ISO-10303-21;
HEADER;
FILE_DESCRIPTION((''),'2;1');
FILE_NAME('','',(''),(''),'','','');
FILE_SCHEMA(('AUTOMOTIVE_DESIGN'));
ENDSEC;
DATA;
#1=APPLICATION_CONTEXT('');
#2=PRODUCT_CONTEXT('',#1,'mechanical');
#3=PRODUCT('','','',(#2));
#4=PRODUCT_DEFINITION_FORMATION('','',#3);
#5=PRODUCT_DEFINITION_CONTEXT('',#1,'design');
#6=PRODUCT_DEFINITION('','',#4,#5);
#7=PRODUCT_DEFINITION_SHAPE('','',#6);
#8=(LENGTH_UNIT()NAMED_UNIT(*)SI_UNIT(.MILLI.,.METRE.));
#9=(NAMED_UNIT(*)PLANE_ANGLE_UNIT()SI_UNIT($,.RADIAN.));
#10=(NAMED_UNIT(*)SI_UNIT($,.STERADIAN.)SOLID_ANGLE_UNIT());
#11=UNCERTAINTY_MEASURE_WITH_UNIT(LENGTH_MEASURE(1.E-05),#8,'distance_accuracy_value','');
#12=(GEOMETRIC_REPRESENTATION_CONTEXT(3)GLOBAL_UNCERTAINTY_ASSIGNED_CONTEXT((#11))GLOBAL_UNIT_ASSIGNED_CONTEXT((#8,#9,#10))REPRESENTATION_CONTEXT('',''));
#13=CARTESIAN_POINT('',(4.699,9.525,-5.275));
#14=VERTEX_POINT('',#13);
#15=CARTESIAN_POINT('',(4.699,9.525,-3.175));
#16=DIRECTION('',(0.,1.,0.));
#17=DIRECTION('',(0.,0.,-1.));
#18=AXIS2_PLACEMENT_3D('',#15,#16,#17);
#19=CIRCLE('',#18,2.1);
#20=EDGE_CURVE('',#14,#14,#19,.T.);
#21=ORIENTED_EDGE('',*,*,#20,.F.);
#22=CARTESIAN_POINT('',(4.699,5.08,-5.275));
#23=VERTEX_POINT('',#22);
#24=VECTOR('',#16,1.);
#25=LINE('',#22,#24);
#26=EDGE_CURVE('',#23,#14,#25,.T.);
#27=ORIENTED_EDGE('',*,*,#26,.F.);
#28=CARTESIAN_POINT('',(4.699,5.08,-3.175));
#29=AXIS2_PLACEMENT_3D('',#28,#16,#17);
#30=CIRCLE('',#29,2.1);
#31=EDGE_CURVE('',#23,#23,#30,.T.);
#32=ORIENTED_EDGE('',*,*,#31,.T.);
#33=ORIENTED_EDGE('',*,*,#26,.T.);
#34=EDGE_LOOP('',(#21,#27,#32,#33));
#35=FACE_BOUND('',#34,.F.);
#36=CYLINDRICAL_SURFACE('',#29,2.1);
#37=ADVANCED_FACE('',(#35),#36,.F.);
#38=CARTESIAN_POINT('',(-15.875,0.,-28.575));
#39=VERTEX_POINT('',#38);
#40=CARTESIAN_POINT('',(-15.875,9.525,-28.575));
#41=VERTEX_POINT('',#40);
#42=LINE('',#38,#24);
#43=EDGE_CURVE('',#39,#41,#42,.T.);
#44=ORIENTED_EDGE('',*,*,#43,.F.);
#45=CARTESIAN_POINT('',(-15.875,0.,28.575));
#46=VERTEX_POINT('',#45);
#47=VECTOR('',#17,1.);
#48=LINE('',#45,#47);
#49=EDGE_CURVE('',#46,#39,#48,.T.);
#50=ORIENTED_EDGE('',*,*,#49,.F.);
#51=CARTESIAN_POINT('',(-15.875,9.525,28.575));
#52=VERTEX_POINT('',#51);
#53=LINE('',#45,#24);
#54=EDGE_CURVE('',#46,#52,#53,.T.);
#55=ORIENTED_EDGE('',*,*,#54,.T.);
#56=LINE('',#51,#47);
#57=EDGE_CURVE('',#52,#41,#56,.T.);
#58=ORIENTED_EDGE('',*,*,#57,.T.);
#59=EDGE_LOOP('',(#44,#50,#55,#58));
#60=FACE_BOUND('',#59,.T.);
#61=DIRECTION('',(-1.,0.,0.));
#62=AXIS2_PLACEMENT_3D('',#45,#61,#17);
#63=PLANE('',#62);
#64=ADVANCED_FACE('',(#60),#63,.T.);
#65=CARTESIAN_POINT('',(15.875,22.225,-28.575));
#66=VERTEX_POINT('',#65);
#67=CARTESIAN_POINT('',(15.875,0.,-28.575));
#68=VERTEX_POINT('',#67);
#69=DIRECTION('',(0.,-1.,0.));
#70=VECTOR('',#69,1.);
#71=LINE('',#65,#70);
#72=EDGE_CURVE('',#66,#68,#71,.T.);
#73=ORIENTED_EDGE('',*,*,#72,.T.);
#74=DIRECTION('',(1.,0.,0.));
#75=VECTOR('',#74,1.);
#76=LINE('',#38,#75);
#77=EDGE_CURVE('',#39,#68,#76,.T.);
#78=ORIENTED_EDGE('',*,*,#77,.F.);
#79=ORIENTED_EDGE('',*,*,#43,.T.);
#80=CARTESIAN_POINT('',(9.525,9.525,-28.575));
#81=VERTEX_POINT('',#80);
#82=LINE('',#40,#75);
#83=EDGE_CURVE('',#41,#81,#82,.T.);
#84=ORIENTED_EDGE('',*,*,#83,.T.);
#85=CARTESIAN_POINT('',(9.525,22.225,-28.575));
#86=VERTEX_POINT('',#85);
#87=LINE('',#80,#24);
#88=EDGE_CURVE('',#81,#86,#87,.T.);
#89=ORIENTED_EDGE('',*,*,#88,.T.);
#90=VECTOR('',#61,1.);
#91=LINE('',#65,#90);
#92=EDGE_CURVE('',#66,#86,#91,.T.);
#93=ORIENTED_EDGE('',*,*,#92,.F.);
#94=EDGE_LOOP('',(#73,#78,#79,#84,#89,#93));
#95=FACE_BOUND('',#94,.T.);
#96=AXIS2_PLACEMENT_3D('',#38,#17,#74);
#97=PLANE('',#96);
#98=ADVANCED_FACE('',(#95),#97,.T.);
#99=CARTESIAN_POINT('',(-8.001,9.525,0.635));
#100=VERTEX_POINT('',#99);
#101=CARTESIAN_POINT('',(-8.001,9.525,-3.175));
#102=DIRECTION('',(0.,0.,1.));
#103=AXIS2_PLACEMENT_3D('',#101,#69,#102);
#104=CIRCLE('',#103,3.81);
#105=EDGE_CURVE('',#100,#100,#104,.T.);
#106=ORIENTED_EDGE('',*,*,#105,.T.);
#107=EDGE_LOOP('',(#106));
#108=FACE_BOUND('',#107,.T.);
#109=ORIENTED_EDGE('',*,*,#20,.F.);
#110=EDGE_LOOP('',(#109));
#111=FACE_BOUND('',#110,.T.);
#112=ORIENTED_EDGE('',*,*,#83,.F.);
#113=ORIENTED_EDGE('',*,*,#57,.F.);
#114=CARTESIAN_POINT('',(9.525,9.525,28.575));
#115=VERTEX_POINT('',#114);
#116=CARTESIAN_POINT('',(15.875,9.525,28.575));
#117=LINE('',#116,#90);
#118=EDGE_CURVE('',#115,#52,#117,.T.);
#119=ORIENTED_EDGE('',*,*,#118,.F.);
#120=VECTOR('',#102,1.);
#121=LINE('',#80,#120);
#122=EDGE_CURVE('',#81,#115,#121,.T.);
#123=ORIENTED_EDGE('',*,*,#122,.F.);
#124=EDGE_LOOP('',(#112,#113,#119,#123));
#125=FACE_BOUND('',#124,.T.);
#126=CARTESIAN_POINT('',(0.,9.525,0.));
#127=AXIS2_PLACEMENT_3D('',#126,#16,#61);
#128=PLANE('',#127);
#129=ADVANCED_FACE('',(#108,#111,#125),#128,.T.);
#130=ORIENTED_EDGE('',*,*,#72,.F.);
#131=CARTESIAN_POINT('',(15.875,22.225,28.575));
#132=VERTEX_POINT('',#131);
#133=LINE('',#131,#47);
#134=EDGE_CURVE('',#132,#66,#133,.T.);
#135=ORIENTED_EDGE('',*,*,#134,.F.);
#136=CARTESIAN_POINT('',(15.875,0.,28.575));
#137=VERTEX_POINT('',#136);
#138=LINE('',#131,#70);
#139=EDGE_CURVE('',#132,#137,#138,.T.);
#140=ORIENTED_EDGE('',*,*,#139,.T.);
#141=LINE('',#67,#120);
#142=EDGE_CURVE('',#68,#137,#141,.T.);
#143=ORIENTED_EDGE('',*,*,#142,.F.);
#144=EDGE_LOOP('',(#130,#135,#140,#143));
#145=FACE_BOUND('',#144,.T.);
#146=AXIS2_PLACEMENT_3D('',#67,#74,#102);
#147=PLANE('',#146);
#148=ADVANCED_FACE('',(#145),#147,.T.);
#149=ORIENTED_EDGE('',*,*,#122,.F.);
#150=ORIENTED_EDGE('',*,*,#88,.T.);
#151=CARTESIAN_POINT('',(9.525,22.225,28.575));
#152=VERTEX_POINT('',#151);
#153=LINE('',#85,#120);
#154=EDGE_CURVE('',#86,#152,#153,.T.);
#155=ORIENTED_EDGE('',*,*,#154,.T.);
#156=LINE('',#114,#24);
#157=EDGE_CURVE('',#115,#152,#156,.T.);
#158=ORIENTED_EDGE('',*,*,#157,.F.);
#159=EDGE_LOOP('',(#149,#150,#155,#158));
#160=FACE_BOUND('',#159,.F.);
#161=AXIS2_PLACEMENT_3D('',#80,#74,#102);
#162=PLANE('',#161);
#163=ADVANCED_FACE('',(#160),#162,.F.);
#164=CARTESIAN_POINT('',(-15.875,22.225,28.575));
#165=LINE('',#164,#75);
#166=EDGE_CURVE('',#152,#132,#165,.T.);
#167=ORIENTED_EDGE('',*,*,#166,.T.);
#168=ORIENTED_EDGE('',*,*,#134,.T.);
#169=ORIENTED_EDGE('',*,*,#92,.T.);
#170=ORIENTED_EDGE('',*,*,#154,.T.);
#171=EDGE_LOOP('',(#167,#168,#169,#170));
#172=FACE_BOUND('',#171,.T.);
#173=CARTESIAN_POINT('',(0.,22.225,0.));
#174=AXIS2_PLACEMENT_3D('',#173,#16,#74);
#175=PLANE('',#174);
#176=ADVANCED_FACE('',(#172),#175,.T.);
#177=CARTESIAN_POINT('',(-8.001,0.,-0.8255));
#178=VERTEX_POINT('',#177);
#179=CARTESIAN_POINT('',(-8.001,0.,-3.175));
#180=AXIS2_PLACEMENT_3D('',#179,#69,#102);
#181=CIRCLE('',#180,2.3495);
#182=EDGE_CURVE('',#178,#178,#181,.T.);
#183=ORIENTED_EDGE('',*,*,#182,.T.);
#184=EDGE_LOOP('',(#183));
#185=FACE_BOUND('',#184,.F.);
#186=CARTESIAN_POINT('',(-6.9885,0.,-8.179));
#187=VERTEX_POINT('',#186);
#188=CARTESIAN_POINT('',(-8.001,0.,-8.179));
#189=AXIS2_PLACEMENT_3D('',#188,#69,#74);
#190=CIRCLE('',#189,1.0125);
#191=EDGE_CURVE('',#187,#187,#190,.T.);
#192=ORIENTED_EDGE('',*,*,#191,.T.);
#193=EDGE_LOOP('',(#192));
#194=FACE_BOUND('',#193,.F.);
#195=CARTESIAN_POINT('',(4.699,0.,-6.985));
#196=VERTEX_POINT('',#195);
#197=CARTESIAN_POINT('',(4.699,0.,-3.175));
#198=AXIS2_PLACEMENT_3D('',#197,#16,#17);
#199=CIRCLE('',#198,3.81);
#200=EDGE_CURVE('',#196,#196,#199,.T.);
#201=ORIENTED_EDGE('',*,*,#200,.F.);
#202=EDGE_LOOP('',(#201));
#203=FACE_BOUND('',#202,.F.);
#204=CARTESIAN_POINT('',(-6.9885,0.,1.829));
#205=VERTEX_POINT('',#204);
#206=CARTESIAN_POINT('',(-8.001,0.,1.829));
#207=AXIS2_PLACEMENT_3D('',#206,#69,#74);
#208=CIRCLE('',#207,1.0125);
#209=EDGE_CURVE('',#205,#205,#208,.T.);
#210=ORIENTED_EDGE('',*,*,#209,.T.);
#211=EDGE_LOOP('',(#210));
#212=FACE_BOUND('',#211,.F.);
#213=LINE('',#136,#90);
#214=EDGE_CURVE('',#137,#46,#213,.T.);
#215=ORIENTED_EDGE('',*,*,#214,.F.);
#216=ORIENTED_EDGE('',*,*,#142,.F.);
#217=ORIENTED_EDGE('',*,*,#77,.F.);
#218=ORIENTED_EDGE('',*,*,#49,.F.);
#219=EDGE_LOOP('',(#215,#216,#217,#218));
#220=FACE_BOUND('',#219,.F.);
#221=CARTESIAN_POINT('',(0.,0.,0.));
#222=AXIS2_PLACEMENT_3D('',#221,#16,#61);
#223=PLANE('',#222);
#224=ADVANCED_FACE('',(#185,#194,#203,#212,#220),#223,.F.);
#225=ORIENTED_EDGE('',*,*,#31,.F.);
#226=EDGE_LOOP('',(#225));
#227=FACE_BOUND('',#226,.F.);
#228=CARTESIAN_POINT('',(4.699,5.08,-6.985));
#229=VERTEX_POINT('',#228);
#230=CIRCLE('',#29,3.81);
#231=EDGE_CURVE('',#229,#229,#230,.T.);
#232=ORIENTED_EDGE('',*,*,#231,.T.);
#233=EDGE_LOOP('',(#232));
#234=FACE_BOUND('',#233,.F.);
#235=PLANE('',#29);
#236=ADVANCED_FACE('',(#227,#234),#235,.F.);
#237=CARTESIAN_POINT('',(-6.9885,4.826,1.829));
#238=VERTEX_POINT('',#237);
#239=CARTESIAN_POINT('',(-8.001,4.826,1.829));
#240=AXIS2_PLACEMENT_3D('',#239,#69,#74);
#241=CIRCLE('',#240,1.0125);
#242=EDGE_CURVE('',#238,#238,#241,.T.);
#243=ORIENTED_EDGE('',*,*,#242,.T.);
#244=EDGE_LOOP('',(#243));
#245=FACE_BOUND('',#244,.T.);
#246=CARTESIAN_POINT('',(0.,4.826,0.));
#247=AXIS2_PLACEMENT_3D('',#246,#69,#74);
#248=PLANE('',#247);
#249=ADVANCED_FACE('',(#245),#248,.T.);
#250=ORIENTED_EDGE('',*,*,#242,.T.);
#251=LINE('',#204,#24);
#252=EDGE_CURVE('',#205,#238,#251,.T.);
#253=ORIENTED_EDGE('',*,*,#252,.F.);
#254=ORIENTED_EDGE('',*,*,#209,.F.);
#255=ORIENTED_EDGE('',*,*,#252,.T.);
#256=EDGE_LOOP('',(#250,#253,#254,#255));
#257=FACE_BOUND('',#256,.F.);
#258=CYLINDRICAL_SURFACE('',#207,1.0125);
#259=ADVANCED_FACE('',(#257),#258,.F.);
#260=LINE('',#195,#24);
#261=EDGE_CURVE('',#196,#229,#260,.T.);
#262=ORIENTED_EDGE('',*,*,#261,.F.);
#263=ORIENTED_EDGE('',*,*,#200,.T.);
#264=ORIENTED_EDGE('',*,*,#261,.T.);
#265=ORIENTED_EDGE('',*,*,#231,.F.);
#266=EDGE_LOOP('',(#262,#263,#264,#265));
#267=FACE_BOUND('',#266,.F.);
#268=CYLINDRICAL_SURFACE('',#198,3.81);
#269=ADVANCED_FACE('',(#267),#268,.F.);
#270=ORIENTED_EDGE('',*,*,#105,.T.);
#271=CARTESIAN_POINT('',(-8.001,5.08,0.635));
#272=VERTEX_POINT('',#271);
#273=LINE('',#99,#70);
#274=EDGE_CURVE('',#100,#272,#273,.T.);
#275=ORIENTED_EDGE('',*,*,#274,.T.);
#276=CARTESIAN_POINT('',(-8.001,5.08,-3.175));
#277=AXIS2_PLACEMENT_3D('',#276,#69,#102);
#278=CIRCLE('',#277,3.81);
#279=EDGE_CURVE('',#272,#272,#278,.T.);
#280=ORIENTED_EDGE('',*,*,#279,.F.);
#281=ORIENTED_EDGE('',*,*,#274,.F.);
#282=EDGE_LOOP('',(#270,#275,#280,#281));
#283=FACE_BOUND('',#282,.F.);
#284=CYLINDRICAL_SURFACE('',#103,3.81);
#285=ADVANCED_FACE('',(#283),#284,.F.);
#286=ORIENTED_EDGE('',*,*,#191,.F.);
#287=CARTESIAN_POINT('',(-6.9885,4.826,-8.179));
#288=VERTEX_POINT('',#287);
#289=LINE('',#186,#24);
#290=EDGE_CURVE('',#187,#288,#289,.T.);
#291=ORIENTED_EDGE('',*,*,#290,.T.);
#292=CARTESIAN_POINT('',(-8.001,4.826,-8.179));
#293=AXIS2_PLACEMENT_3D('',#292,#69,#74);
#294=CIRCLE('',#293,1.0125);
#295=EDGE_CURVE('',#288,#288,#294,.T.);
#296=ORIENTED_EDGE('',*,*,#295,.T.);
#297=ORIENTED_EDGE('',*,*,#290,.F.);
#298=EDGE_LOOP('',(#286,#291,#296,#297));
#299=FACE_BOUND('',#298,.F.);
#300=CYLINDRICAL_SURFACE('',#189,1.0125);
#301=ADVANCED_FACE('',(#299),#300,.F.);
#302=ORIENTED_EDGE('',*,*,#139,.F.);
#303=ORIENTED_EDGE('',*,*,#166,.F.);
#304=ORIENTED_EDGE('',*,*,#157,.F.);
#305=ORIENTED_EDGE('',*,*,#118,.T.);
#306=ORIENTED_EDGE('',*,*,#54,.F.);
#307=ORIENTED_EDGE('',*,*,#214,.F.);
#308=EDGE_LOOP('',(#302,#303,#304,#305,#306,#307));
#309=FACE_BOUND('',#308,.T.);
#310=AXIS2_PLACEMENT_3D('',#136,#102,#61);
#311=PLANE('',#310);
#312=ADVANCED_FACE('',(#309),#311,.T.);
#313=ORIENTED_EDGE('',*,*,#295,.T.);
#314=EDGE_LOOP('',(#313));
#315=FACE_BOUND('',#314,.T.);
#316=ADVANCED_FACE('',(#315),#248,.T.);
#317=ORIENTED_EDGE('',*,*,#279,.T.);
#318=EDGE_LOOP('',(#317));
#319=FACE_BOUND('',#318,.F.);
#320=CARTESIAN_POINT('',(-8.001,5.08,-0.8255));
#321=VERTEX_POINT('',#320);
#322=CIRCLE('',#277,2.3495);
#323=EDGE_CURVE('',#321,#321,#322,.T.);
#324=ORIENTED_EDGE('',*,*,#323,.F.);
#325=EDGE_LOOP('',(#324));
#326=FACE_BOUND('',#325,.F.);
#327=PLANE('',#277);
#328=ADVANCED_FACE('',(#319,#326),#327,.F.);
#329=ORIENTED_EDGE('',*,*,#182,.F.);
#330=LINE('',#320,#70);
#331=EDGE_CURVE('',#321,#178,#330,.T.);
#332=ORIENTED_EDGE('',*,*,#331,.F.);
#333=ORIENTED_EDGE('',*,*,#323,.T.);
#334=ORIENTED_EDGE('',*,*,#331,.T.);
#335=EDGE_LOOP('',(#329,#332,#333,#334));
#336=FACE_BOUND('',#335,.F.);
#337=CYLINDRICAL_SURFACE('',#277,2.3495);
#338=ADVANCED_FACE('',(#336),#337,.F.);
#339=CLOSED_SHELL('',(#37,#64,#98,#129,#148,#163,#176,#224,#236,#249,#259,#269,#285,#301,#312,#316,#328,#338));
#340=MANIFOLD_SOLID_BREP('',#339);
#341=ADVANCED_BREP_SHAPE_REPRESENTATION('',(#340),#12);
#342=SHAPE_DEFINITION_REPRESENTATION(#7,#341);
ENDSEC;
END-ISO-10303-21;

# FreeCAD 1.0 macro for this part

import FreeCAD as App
import Part
import Sketcher

V = App.Vector
Q = App.Units.Quantity

doc = App.newDocument("Part")
body = doc.addObject("PartDesign::Body", "Body")

# Sketch on XZ plane
sketch1 = body.newObject("Sketcher::SketchObject", "Sketch")
sketch1.AttachmentSupport = (doc.getObject("XZ_Plane"), [""])
sketch1.MapMode = "FlatFace"
sketch1.addGeometry(Part.LineSegment(V(16, -29, 0), V(-16, -29, 0)), False)
sketch1.addGeometry(Part.LineSegment(V(-16, -29, 0), V(-16, 29, 0)), False)
sketch1.addGeometry(Part.LineSegment(V(-16, 29, 0), V(16, 29, 0)), False)
sketch1.addGeometry(Part.LineSegment(V(16, 29, 0), V(16, -29, 0)), False)
sketch1.addConstraint(Sketcher.Constraint("Coincident", 0, 2, 1, 1))
sketch1.addConstraint(Sketcher.Constraint("Coincident", 1, 2, 2, 1))
sketch1.addConstraint(Sketcher.Constraint("Coincident", 2, 2, 3, 1))
sketch1.addConstraint(Sketcher.Constraint("Coincident", 3, 2, 0, 1))
sketch1.addConstraint(Sketcher.Constraint("Horizontal", 0))
sketch1.addConstraint(Sketcher.Constraint("Vertical", 1))
sketch1.addConstraint(Sketcher.Constraint("Horizontal", 2))
sketch1.addConstraint(Sketcher.Constraint("Vertical", 3))
sketch1.addConstraint(Sketcher.Constraint("Symmetric", 0, 2, 2, 2, -1, 1))
sketch1.addConstraint(Sketcher.Constraint("DistanceX", 0, 2, 0, 1, Q("1.25 in")))
sketch1.addConstraint(Sketcher.Constraint("DistanceY", 1, 1, 1, 2, Q("2.25 in")))
pad1 = body.newObject("PartDesign::Pad", "Pad")
pad1.Profile = sketch1
pad1.Length = Q("0.375 in")
pad1.Reversed = True

# Sketch on XZ plane
sketch2 = body.newObject("Sketcher::SketchObject", "Sketch001")
sketch2.AttachmentSupport = (doc.getObject("XZ_Plane"), [""])
sketch2.MapMode = "FlatFace"
sketch2.AttachmentOffset = App.Placement(V(0, 0, -0.375 * 25.4), App.Rotation())
sketch2.addGeometry(Part.LineSegment(V(10, 29, 0), V(16, 29, 0)), False)
sketch2.addGeometry(Part.LineSegment(V(16, 29, 0), V(16, -29, 0)), False)
sketch2.addGeometry(Part.LineSegment(V(16, -29, 0), V(10, -29, 0)), False)
sketch2.addGeometry(Part.LineSegment(V(10, -29, 0), V(10, 29, 0)), False)
sketch2.addConstraint(Sketcher.Constraint("Coincident", 0, 2, 1, 1))
sketch2.addConstraint(Sketcher.Constraint("Coincident", 1, 2, 2, 1))
sketch2.addConstraint(Sketcher.Constraint("Coincident", 2, 2, 3, 1))
sketch2.addConstraint(Sketcher.Constraint("Coincident", 3, 2, 0, 1))
sketch2.addConstraint(Sketcher.Constraint("Horizontal", 0))
sketch2.addConstraint(Sketcher.Constraint("Vertical", 1))
sketch2.addConstraint(Sketcher.Constraint("Horizontal", 2))
sketch2.addConstraint(Sketcher.Constraint("Vertical", 3))
sketch2.addConstraint(Sketcher.Constraint("DistanceX", 0, 1, 0, 2, Q("0.25 in")))
sketch2.addConstraint(Sketcher.Constraint("DistanceY", 1, 2, 1, 1, Q("2.25 in")))
sketch2.addConstraint(Sketcher.Constraint("DistanceX", -1, 1, 0, 2, Q("0.625 in")))
sketch2.addConstraint(Sketcher.Constraint("DistanceY", -1, 1, 0, 2, Q("1.125 in")))
pad2 = body.newObject("PartDesign::Pad", "Pad001")
pad2.Profile = sketch2
pad2.Length = Q("0.5 in")
pad2.Reversed = True

# Sketch on XZ plane
sketch3 = body.newObject("Sketcher::SketchObject", "Sketch002")
sketch3.AttachmentSupport = (doc.getObject("XZ_Plane"), [""])
sketch3.MapMode = "FlatFace"
sketch3.addGeometry(Part.Circle(V(4.7, -3.2, 0), V(0, 0, 1), 2.1), False)
sketch3.addConstraint(Sketcher.Constraint("Diameter", 0, Q("4.2 mm")))
sketch3.addConstraint(Sketcher.Constraint("DistanceX", -1, 1, 0, 3, Q("0.185 in")))
sketch3.addConstraint(Sketcher.Constraint("DistanceY", 0, 3, -1, 1, Q("0.125 in")))
doc.recompute()
hole = body.newObject("PartDesign::Hole", "Hole")
hole.Profile = sketch3
hole.ThreadType = "None"
hole.Diameter = 4.2
hole.DepthType = "ThroughAll"
hole.HoleCutType = "Counterbore"
hole.HoleCutDiameter = Q("0.3 in")
hole.HoleCutDepth = Q("0.2 in")

# Sketch on XZ plane
sketch4 = body.newObject("Sketcher::SketchObject", "Sketch003")
sketch4.AttachmentSupport = (doc.getObject("XZ_Plane"), [""])
sketch4.MapMode = "FlatFace"
sketch4.AttachmentOffset = App.Placement(V(0, 0, -0.375 * 25.4), App.Rotation())
sketch4.addGeometry(Part.Circle(V(-8, -3.2, 0), V(0, 0, 1), 2.3), False)
sketch4.addConstraint(Sketcher.Constraint("Diameter", 0, Q("0.185 in")))
sketch4.addConstraint(Sketcher.Constraint("DistanceX", 0, 3, -1, 1, Q("0.315 in")))
sketch4.addConstraint(Sketcher.Constraint("DistanceY", 0, 3, -1, 1, Q("0.125 in")))
doc.recompute()
hole2 = body.newObject("PartDesign::Hole", "Hole001")
hole2.Profile = sketch4
hole2.ThreadType = "None"
hole2.Diameter = Q("0.185 in")
hole2.DepthType = "ThroughAll"
hole2.HoleCutType = "Counterbore"
hole2.HoleCutDiameter = Q("0.3 in")
hole2.HoleCutDepth = Q("0.175 in")
hole2.Reversed = True

# Sketch on XZ plane
sketch5 = body.newObject("Sketcher::SketchObject", "Sketch004")
sketch5.AttachmentSupport = (doc.getObject("XZ_Plane"), [""])
sketch5.MapMode = "FlatFace"
sketch5.addGeometry(Part.Circle(V(-8, -8.2, 0), V(0, 0, 1), 1), False)
sketch5.addGeometry(Part.Circle(V(-8, 1.8, 0), V(0, 0, 1), 1), False)
sketch5.addConstraint(Sketcher.Constraint("Equal", 0, 1))
sketch5.addConstraint(Sketcher.Constraint("Vertical", 0, 3, 1, 3))
sketch5.addConstraint(Sketcher.Constraint("Diameter", 0, Q("2.025 mm")))
sketch5.addConstraint(Sketcher.Constraint("DistanceX", 0, 3, -1, 1, Q("0.315 in")))
sketch5.addConstraint(Sketcher.Constraint("DistanceY", 0, 3, -1, 1, Q("0.322 in")))
sketch5.addConstraint(Sketcher.Constraint("DistanceY", -1, 1, 1, 3, Q("0.072 in")))
pocket1 = body.newObject("PartDesign::Pocket", "Pocket")
pocket1.Profile = sketch5
pocket1.Length = Q("0.19 in")

doc.recompute()
